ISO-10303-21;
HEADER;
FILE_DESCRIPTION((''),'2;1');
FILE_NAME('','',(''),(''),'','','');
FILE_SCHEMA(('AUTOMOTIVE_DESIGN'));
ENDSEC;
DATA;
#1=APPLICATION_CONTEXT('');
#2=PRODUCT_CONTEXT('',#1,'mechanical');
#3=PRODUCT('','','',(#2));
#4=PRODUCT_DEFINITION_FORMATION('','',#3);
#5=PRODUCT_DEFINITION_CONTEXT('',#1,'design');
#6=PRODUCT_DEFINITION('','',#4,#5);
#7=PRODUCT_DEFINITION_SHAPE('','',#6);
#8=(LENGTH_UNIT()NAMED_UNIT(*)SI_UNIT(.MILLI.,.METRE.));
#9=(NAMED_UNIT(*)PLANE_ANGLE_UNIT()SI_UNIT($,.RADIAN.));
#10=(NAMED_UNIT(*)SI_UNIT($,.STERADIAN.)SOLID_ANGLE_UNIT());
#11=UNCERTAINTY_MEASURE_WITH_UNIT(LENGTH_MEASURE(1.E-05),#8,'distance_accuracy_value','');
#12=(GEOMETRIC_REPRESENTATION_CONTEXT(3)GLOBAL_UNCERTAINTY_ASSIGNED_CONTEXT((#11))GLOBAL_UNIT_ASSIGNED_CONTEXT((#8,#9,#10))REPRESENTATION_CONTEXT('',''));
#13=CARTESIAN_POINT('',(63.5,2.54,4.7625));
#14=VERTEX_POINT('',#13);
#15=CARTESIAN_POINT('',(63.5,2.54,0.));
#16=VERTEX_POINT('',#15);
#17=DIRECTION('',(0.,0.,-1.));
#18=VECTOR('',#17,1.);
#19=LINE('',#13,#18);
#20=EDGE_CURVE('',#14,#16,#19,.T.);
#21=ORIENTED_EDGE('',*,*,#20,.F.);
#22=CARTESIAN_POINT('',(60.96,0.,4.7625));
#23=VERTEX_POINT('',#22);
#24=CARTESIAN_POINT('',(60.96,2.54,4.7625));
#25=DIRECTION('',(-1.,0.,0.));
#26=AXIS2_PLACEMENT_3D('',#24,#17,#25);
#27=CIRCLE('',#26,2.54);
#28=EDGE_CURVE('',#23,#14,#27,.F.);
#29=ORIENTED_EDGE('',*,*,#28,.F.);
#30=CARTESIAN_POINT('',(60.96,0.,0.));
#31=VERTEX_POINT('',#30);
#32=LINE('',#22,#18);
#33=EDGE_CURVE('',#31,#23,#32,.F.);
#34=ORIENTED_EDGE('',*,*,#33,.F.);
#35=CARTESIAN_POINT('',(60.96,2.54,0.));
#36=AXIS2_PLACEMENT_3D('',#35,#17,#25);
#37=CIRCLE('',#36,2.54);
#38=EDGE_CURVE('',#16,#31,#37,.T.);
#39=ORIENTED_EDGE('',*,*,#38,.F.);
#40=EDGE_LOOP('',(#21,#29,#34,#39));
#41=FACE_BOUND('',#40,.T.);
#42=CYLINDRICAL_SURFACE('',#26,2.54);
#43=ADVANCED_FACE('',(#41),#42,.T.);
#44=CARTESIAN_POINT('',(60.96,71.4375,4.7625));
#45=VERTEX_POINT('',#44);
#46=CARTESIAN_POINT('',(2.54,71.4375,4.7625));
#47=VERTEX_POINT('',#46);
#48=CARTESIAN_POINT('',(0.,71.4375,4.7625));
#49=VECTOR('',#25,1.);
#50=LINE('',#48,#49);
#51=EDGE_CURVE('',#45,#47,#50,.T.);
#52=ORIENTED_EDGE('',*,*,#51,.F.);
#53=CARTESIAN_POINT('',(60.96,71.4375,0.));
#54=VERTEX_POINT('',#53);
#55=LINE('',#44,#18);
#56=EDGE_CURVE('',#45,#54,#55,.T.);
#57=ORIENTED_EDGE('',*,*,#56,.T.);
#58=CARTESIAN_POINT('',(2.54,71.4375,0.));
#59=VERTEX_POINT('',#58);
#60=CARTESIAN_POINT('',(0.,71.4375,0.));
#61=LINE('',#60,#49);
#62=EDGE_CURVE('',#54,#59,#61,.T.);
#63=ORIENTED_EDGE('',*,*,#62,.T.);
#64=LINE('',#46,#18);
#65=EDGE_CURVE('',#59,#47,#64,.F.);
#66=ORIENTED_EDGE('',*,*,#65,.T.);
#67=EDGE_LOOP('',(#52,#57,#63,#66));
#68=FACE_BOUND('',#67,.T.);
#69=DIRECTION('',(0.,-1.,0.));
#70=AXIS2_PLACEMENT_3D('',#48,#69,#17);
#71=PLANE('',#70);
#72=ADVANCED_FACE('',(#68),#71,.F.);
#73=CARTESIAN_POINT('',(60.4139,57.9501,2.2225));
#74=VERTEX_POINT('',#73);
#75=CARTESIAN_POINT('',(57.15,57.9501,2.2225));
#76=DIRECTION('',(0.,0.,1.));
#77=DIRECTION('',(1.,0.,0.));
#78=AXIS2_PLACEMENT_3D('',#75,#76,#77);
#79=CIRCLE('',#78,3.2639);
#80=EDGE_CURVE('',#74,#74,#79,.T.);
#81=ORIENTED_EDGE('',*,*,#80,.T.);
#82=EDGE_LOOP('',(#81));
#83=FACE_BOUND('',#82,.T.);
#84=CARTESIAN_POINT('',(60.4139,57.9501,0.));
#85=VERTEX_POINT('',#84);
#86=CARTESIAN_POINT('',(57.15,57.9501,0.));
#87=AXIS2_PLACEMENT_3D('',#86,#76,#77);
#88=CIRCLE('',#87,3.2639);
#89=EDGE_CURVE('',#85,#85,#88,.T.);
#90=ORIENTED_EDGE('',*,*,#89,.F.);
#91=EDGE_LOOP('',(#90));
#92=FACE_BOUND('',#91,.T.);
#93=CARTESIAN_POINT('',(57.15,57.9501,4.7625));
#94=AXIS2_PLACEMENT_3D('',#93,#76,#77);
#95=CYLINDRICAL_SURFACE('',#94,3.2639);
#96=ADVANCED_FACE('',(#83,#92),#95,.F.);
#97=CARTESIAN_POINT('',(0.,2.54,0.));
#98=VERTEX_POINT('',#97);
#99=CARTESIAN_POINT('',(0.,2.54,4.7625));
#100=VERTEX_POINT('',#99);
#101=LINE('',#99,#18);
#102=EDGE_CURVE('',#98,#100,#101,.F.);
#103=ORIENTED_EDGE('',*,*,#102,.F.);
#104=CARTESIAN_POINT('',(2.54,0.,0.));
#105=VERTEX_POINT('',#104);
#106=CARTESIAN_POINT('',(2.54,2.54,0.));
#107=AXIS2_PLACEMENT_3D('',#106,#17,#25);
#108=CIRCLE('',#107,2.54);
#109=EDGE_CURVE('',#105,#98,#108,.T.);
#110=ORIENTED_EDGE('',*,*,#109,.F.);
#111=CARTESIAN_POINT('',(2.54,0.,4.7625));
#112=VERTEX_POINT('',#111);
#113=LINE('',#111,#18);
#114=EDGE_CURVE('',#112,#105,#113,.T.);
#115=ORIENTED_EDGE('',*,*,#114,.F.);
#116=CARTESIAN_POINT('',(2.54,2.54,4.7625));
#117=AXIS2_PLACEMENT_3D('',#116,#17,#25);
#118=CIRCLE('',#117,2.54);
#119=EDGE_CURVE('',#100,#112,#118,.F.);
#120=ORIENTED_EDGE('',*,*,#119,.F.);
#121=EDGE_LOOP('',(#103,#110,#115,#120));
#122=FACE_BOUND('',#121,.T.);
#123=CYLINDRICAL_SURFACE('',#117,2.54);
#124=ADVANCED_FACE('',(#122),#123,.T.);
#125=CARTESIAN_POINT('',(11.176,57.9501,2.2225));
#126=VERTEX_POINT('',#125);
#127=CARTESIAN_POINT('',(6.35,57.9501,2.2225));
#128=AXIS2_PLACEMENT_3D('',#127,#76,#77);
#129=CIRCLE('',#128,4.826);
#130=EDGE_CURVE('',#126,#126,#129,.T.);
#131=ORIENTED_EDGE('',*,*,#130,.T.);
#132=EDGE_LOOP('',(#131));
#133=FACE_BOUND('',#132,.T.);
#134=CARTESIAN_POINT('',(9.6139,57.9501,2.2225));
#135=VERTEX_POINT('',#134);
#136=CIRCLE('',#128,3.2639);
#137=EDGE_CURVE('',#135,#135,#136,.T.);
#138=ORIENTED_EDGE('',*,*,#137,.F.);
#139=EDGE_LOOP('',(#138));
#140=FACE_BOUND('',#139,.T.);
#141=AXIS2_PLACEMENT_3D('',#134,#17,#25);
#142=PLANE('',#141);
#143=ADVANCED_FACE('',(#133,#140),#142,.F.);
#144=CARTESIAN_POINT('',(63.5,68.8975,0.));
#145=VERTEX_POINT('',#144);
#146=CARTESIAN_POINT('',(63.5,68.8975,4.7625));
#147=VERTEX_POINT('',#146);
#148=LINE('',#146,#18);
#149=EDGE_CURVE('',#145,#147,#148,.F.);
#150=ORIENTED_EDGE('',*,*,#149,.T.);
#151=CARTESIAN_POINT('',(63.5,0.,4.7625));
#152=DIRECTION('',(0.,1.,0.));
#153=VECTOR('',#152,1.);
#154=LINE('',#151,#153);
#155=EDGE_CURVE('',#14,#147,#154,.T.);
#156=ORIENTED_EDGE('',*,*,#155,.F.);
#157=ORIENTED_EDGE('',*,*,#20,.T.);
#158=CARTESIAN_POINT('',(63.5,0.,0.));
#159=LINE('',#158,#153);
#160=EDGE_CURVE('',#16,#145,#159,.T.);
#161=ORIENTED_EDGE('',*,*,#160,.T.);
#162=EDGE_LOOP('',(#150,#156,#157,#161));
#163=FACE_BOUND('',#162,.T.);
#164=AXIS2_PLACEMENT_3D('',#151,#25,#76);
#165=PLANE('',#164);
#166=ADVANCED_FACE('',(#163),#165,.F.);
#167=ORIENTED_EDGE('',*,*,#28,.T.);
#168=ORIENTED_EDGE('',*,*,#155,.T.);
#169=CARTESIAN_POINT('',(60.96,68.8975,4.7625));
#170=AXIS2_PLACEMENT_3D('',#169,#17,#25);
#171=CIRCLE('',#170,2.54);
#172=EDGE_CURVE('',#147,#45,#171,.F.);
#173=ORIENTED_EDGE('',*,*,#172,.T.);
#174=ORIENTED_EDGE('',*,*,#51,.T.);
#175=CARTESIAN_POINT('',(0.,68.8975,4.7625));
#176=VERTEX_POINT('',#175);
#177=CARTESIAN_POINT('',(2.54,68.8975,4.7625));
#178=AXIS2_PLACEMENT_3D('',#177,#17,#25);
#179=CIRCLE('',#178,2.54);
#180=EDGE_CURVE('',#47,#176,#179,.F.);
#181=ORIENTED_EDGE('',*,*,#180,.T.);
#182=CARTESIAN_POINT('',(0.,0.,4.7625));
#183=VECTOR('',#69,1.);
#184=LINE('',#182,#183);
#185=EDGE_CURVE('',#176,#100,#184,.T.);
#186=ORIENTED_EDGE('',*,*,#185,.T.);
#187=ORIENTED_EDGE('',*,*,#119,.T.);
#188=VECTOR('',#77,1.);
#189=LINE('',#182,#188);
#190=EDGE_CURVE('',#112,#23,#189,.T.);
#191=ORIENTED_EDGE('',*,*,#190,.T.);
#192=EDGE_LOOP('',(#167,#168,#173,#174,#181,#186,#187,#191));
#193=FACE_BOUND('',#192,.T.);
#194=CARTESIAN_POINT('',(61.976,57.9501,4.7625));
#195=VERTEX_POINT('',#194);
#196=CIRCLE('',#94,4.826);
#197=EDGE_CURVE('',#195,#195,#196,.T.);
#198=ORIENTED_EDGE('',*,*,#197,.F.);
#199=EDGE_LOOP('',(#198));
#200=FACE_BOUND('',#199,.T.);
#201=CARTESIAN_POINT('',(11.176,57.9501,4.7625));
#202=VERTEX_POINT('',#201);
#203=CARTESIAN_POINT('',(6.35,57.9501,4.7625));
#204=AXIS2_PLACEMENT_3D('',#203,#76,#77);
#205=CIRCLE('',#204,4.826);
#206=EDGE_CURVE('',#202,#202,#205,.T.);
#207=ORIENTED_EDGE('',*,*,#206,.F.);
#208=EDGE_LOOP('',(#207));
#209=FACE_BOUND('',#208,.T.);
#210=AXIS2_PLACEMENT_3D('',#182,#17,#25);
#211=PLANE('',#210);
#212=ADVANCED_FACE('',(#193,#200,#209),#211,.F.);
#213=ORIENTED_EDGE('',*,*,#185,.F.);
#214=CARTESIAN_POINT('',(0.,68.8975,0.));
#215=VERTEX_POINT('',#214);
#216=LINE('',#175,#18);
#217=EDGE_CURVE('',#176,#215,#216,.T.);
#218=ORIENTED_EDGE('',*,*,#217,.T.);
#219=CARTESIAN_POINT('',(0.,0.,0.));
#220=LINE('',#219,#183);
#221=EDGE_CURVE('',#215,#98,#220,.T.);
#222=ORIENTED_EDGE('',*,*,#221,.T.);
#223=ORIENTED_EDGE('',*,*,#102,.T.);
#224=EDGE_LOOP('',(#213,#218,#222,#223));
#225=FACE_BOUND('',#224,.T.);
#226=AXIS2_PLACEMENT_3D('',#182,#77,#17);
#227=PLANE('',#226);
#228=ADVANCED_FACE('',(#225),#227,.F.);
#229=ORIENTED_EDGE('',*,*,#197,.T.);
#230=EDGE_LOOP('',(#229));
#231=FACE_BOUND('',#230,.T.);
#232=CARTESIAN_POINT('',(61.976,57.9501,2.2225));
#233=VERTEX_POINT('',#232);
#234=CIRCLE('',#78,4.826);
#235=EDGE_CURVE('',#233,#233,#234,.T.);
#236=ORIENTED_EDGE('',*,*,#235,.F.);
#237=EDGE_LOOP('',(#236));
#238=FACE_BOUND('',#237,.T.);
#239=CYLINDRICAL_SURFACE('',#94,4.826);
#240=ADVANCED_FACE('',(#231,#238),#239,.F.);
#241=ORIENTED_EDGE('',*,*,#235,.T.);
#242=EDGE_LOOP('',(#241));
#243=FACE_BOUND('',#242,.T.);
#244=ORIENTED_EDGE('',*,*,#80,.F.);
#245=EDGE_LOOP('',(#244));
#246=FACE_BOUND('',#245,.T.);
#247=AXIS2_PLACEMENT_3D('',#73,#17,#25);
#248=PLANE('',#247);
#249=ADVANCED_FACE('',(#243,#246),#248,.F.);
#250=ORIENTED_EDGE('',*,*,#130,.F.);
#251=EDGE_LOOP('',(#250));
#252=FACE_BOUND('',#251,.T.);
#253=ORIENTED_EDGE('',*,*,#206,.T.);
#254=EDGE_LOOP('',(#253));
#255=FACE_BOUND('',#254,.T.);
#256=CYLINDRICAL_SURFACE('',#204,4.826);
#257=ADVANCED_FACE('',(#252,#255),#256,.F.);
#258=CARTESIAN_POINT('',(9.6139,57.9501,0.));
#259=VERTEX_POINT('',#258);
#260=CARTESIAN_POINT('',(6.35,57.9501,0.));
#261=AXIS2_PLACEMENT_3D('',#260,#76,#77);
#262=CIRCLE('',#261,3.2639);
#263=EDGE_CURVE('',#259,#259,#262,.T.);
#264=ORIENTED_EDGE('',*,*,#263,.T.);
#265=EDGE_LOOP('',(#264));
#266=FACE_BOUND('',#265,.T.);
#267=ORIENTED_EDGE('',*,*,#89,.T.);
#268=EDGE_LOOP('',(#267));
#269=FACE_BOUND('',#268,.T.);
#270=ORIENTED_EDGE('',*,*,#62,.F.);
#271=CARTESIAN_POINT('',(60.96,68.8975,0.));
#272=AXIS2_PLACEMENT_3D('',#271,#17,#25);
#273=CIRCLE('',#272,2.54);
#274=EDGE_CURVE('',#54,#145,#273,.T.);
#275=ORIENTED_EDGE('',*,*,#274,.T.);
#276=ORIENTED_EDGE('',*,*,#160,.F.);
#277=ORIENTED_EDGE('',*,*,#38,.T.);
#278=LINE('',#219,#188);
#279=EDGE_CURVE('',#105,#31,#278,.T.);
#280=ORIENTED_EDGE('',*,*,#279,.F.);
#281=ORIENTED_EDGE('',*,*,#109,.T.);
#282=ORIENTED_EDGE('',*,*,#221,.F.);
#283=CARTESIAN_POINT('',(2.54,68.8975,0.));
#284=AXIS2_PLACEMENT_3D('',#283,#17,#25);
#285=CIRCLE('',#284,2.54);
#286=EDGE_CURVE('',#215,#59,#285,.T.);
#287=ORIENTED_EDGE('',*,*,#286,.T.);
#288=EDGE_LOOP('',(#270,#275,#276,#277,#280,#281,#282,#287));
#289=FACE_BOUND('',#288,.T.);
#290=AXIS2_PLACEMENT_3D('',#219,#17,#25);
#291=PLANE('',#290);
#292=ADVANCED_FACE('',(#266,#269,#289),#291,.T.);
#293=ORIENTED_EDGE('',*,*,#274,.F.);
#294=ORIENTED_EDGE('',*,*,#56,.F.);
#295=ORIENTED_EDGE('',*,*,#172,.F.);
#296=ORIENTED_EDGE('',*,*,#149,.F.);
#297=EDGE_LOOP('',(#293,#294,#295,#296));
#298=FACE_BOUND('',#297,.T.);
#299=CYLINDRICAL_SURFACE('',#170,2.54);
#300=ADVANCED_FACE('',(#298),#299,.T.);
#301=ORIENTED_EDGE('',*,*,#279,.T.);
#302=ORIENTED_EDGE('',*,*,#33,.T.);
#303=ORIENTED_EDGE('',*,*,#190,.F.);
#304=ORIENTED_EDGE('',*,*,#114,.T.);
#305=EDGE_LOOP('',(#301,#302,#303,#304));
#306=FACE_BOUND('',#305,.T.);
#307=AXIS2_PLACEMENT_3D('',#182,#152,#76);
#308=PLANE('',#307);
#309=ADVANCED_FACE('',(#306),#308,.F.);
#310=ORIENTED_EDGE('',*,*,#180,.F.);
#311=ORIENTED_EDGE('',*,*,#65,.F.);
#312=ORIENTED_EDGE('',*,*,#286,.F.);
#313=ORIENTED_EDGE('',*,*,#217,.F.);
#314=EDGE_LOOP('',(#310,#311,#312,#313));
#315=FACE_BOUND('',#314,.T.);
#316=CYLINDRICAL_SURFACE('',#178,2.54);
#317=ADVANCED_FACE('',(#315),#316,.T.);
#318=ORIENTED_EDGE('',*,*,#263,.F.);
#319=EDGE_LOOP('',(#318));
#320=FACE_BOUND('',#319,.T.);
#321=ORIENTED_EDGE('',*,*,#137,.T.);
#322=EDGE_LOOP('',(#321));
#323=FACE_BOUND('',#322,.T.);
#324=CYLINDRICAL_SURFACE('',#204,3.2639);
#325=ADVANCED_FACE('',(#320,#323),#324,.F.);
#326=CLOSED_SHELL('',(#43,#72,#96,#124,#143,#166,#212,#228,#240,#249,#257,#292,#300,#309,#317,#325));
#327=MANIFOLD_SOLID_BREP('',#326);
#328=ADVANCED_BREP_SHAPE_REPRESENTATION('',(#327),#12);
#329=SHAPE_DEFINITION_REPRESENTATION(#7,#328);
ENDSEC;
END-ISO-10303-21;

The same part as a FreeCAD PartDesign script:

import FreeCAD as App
import Part
import Sketcher
Q = App.Units.Quantity


def edges_at(feature, points):
    """Names of the edges that pass closest to the given points."""
    edges = feature.Shape.Edges
    near = lambda p: min(range(len(edges)), key=lambda i: edges[i].distToShape(Part.Vertex(*p))[0])
    return sorted({f"Edge{near(p) + 1}" for p in points})


def add_polygon(sketch, points):
    """Adds a closed chain of lines whose ends are joined by coincident constraints."""
    first, n = sketch.GeometryCount, len(points)
    for a, b in zip(points, points[1:] + points[:1]):
        sketch.addGeometry(Part.LineSegment(App.Vector(*a, 0), App.Vector(*b, 0)), False)
    for i in range(n):
        sketch.addConstraint(Sketcher.Constraint("Coincident", first + i, 2, first + (i + 1) % n, 1))

doc = App.newDocument("Part")
body = doc.addObject("PartDesign::Body", "Body")

sketch1 = body.newObject("Sketcher::SketchObject", "Sketch")
sketch1.AttachmentSupport = (doc.getObject("XY_Plane"), [""])
sketch1.MapMode = "FlatFace"
add_polygon(sketch1, [(0, 71), (0, 0), (64, 0), (64, 71)])
sketch1.addConstraint([
    Sketcher.Constraint("Vertical", 0),
    Sketcher.Constraint("Horizontal", 1),
    Sketcher.Constraint("Vertical", 2),
    Sketcher.Constraint("Horizontal", 3),
    Sketcher.Constraint("Coincident", 0, 2, -1, 1),
    Sketcher.Constraint("DistanceX", 1, 1, 1, 2, Q("2.5 in")),
    Sketcher.Constraint("DistanceY", 0, 2, 0, 1, Q("2.8125 in")),
])
pad1 = body.newObject("PartDesign::Pad", "Pad")
pad1.Profile = sketch1
pad1.Length = Q("0.1875 in")

sketch2 = body.newObject("Sketcher::SketchObject", "Sketch001")
sketch2.AttachmentSupport = (doc.getObject("XY_Plane"), [""])
sketch2.MapMode = "FlatFace"
sketch2.AttachmentOffset = App.Placement(App.Vector(0, 0, 0.1875 * 25.4), App.Rotation())
sketch2.addGeometry([
    Part.Circle(App.Vector(57.1, 58, 0), App.Vector(0, 0, 1), 3.3),
    Part.Circle(App.Vector(6.3, 58, 0), App.Vector(0, 0, 1), 3.3),
], False)
sketch2.addConstraint([
    Sketcher.Constraint("Equal", 0, 1),
    Sketcher.Constraint("Horizontal", 0, 3, 1, 3),
    Sketcher.Constraint("Diameter", 0, Q("0.257 in")),
    Sketcher.Constraint("DistanceX", 1, 3, 0, 3, Q("2 in")),
    Sketcher.Constraint("DistanceX", -1, 1, 0, 3, Q("2.25 in")),
    Sketcher.Constraint("DistanceY", -1, 1, 0, 3, Q("2.2815 in")),
])
doc.recompute()
hole = body.newObject("PartDesign::Hole", "Hole")
hole.Profile = sketch2
hole.ThreadType = "None"
hole.Diameter = Q("0.257 in")
hole.DepthType = "ThroughAll"
hole.HoleCutType = "Counterbore"
hole.HoleCutDiameter = Q("0.38 in")
hole.HoleCutDepth = Q("0.1 in")
doc.recompute()

fillet = body.newObject("PartDesign::Fillet", "Fillet")
fillet.Base = (hole, edges_at(hole, [
    (0, 71.438, 2.381),
    (63.5, 71.438, 2.381),
    (63.5, 0, 2.381),
    (0, 0, 2.381),
]))
fillet.Radius = Q("0.1 in")

doc.recompute()
